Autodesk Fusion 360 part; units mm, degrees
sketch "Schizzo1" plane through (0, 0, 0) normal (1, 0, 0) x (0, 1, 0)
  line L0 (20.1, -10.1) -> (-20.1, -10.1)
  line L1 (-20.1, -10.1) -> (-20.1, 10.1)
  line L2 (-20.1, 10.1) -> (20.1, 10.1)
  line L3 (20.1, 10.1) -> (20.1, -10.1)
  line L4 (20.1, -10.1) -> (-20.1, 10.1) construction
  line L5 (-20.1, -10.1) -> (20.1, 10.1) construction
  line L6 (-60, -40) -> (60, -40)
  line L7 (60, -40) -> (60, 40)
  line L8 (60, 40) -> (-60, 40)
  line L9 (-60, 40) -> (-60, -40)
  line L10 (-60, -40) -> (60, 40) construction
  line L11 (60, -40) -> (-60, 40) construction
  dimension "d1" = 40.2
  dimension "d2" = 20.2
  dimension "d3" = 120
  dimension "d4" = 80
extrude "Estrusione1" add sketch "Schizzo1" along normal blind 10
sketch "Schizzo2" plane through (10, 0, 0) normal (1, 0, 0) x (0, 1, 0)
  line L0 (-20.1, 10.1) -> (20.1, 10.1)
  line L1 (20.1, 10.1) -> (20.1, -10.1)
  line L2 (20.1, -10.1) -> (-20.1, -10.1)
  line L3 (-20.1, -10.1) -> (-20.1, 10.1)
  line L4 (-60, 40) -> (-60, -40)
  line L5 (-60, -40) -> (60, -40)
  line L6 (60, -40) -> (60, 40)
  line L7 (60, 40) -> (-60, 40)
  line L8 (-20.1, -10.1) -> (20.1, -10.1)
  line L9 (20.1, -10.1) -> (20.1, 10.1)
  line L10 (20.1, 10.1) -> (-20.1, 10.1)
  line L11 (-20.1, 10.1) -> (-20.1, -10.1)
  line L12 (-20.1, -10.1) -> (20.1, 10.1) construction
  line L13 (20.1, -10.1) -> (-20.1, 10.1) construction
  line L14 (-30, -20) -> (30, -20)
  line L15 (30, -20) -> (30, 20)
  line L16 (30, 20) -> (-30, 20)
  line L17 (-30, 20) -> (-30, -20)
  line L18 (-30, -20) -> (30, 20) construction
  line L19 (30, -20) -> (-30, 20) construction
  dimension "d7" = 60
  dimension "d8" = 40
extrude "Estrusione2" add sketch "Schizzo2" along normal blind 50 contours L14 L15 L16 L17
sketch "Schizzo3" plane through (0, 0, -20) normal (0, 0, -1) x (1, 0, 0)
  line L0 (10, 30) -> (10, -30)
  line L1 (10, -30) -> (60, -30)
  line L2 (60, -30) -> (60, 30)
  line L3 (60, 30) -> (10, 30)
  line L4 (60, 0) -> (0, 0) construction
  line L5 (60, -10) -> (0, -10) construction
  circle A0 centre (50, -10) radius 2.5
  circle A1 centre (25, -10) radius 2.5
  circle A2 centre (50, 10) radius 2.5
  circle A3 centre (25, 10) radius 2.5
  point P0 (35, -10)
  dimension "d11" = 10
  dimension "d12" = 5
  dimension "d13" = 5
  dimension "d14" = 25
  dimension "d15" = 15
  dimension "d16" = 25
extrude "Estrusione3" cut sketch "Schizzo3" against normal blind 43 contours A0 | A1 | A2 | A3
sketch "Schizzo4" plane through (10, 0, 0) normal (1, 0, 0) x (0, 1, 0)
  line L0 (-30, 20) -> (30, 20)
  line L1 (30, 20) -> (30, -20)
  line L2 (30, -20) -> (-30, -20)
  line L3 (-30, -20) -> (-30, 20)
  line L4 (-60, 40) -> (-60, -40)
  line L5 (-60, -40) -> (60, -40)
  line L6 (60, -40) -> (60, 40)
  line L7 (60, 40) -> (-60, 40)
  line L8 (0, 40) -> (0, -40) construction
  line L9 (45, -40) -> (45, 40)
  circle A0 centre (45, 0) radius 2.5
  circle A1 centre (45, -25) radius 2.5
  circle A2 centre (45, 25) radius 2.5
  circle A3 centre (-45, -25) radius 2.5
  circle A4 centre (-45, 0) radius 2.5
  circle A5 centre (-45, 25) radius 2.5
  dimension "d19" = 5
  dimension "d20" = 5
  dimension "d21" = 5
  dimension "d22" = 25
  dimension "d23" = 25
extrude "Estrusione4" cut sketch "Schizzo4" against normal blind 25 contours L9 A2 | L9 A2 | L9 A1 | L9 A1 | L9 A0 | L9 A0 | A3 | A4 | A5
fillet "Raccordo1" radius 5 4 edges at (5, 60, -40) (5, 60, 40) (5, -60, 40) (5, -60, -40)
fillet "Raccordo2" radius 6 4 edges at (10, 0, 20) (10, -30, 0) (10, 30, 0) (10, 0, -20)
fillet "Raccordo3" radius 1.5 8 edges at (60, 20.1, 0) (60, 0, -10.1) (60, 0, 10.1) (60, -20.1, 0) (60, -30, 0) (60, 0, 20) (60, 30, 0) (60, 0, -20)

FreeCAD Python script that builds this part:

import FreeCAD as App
import Part
import Sketcher


def edges_at(feature, points):
    """Names of the edges that pass closest to the given points."""
    edges = feature.Shape.Edges
    near = lambda p: min(range(len(edges)), key=lambda i: edges[i].distToShape(Part.Vertex(*p))[0])
    return sorted({f"Edge{near(p) + 1}" for p in points})

doc = App.newDocument("Part")
params = doc.addObject("Spreadsheet::Sheet", "Params")
for row, (alias, value) in enumerate([
    ("sketch1_width", "120 mm"),
    ("sketch1_height", "80 mm"),
    ("sketch1_width2", "40.2 mm"),
    ("sketch1_height2", "20.2 mm"),
    ("pad1_length", "10 mm"),
    ("sketch2_width", "60 mm"),
    ("sketch2_height", "40 mm"),
    ("sketch2_width2", "40.2 mm"),
    ("sketch2_height2", "20.2 mm"),
    ("pad2_length", "50 mm"),
    ("sketch3_diameter", "5 mm"),
    ("pocket1_length", "43 mm"),
    ("sketch4_diameter", "5 mm"),
    ("pocket2_length", "25 mm"),
    ("fillet_radius", "5 mm"),
    ("fillet2_radius", "6 mm"),
    ("fillet3_radius", "1.5 mm"),
], start=1):
    params.set(f"A{row}", alias)
    params.set(f"B{row}", "=" + value)
    params.setAlias(f"B{row}", alias)

body = doc.addObject("PartDesign::Body", "Body")

# Sketch on YZ plane
sketch1 = body.newObject("Sketcher::SketchObject", "Sketch")
sketch1.AttachmentSupport = (doc.getObject("YZ_Plane"), [""])
sketch1.MapMode = "FlatFace"
sketch1.addGeometry(Part.LineSegment(App.Vector(-60, 40, 0), App.Vector(-60, -40, 0)), False)
sketch1.addGeometry(Part.LineSegment(App.Vector(-60, -40, 0), App.Vector(60, -40, 0)), False)
sketch1.addGeometry(Part.LineSegment(App.Vector(60, -40, 0), App.Vector(60, 40, 0)), False)
sketch1.addGeometry(Part.LineSegment(App.Vector(60, 40, 0), App.Vector(-60, 40, 0)), False)
sketch1.addGeometry(Part.LineSegment(App.Vector(20, 10, 0), App.Vector(20, -10, 0)), False)
sketch1.addGeometry(Part.LineSegment(App.Vector(20, -10, 0), App.Vector(-20, -10, 0)), False)
sketch1.addGeometry(Part.LineSegment(App.Vector(-20, -10, 0), App.Vector(-20, 10, 0)), False)
sketch1.addGeometry(Part.LineSegment(App.Vector(-20, 10, 0), App.Vector(20, 10, 0)), False)
sketch1.addConstraint(Sketcher.Constraint("Coincident", 0, 2, 1, 1))
sketch1.addConstraint(Sketcher.Constraint("Coincident", 1, 2, 2, 1))
sketch1.addConstraint(Sketcher.Constraint("Coincident", 2, 2, 3, 1))
sketch1.addConstraint(Sketcher.Constraint("Coincident", 3, 2, 0, 1))
sketch1.addConstraint(Sketcher.Constraint("Coincident", 4, 2, 5, 1))
sketch1.addConstraint(Sketcher.Constraint("Coincident", 5, 2, 6, 1))
sketch1.addConstraint(Sketcher.Constraint("Coincident", 6, 2, 7, 1))
sketch1.addConstraint(Sketcher.Constraint("Coincident", 7, 2, 4, 1))
sketch1.addConstraint(Sketcher.Constraint("Vertical", 0))
sketch1.addConstraint(Sketcher.Constraint("Horizontal", 1))
sketch1.addConstraint(Sketcher.Constraint("Vertical", 2))
sketch1.addConstraint(Sketcher.Constraint("Horizontal", 3))
sketch1.addConstraint(Sketcher.Constraint("Vertical", 4))
sketch1.addConstraint(Sketcher.Constraint("Horizontal", 5))
sketch1.addConstraint(Sketcher.Constraint("Vertical", 6))
sketch1.addConstraint(Sketcher.Constraint("Horizontal", 7))
sketch1.addConstraint(Sketcher.Constraint("Symmetric", 0, 2, 2, 2, -1, 1))
sketch1.addConstraint(Sketcher.Constraint("Symmetric", 4, 2, 6, 2, -1, 1))
sketch1.addConstraint(Sketcher.Constraint("DistanceX", 1, 1, 1, 2, 120.0))
sketch1.addConstraint(Sketcher.Constraint("DistanceY", 0, 2, 0, 1, 80.0))
sketch1.addConstraint(Sketcher.Constraint("DistanceX", 5, 2, 5, 1, 40.2))
sketch1.addConstraint(Sketcher.Constraint("DistanceY", 4, 2, 4, 1, 20.2))
sketch1.setExpression("Constraints[18]", "Params.sketch1_width")
sketch1.setExpression("Constraints[19]", "Params.sketch1_height")
sketch1.setExpression("Constraints[20]", "Params.sketch1_width2")
sketch1.setExpression("Constraints[21]", "Params.sketch1_height2")
pad1 = body.newObject("PartDesign::Pad", "Pad")
pad1.Profile = sketch1
pad1.setExpression("Length", "Params.pad1_length")

# Sketch on YZ plane
sketch2 = body.newObject("Sketcher::SketchObject", "Sketch001")
sketch2.AttachmentSupport = (doc.getObject("YZ_Plane"), [""])
sketch2.MapMode = "FlatFace"
sketch2.AttachmentOffset = App.Placement(App.Vector(0, 0, 10), App.Rotation())
sketch2.addGeometry(Part.LineSegment(App.Vector(-30, 20, 0), App.Vector(-30, -20, 0)), False)
sketch2.addGeometry(Part.LineSegment(App.Vector(-30, -20, 0), App.Vector(30, -20, 0)), False)
sketch2.addGeometry(Part.LineSegment(App.Vector(30, -20, 0), App.Vector(30, 20, 0)), False)
sketch2.addGeometry(Part.LineSegment(App.Vector(30, 20, 0), App.Vector(-30, 20, 0)), False)
sketch2.addGeometry(Part.LineSegment(App.Vector(-20, -10, 0), App.Vector(-20, 10, 0)), False)
sketch2.addGeometry(Part.LineSegment(App.Vector(-20, 10, 0), App.Vector(20, 10, 0)), False)
sketch2.addGeometry(Part.LineSegment(App.Vector(20, 10, 0), App.Vector(20, -10, 0)), False)
sketch2.addGeometry(Part.LineSegment(App.Vector(20, -10, 0), App.Vector(-20, -10, 0)), False)
sketch2.addConstraint(Sketcher.Constraint("Coincident", 0, 2, 1, 1))
sketch2.addConstraint(Sketcher.Constraint("Coincident", 1, 2, 2, 1))
sketch2.addConstraint(Sketcher.Constraint("Coincident", 2, 2, 3, 1))
sketch2.addConstraint(Sketcher.Constraint("Coincident", 3, 2, 0, 1))
sketch2.addConstraint(Sketcher.Constraint("Coincident", 4, 2, 5, 1))
sketch2.addConstraint(Sketcher.Constraint("Coincident", 5, 2, 6, 1))
sketch2.addConstraint(Sketcher.Constraint("Coincident", 6, 2, 7, 1))
sketch2.addConstraint(Sketcher.Constraint("Coincident", 7, 2, 4, 1))
sketch2.addConstraint(Sketcher.Constraint("Vertical", 0))
sketch2.addConstraint(Sketcher.Constraint("Horizontal", 1))
sketch2.addConstraint(Sketcher.Constraint("Vertical", 2))
sketch2.addConstraint(Sketcher.Constraint("Horizontal", 3))
sketch2.addConstraint(Sketcher.Constraint("Vertical", 4))
sketch2.addConstraint(Sketcher.Constraint("Horizontal", 5))
sketch2.addConstraint(Sketcher.Constraint("Vertical", 6))
sketch2.addConstraint(Sketcher.Constraint("Horizontal", 7))
sketch2.addConstraint(Sketcher.Constraint("Symmetric", 0, 2, 2, 2, -1, 1))
sketch2.addConstraint(Sketcher.Constraint("Symmetric", 4, 2, 6, 2, -1, 1))
sketch2.addConstraint(Sketcher.Constraint("DistanceX", 1, 1, 1, 2, 60.0))
sketch2.addConstraint(Sketcher.Constraint("DistanceY", 0, 2, 0, 1, 40.0))
sketch2.addConstraint(Sketcher.Constraint("DistanceX", 5, 1, 5, 2, 40.2))
sketch2.addConstraint(Sketcher.Constraint("DistanceY", 4, 1, 4, 2, 20.2))
sketch2.setExpression("Constraints[18]", "Params.sketch2_width")
sketch2.setExpression("Constraints[19]", "Params.sketch2_height")
sketch2.setExpression("Constraints[20]", "Params.sketch2_width2")
sketch2.setExpression("Constraints[21]", "Params.sketch2_height2")
pad2 = body.newObject("PartDesign::Pad", "Pad001")
pad2.Profile = sketch2
pad2.setExpression("Length", "Params.pad2_length")

# Sketch on XY plane
sketch3 = body.newObject("Sketcher::SketchObject", "Sketch002")
sketch3.AttachmentSupport = (doc.getObject("XY_Plane"), [""])
sketch3.MapMode = "FlatFace"
sketch3.AttachmentOffset = App.Placement(App.Vector(0, 0, -20), App.Rotation())
sketch3.addGeometry(Part.Circle(App.Vector(50, 10, 0), App.Vector(0, 0, 1), 2.5), False)
sketch3.addGeometry(Part.Circle(App.Vector(25, 10, 0), App.Vector(0, 0, 1), 2.5), False)
sketch3.addGeometry(Part.Circle(App.Vector(50, -10, 0), App.Vector(0, 0, 1), 2.5), False)
sketch3.addGeometry(Part.Circle(App.Vector(25, -10, 0), App.Vector(0, 0, 1), 2.5), False)
sketch3.addConstraint(Sketcher.Constraint("Equal", 0, 1))
sketch3.addConstraint(Sketcher.Constraint("Equal", 1, 2))
sketch3.addConstraint(Sketcher.Constraint("Equal", 2, 3))
sketch3.addConstraint(Sketcher.Constraint("Symmetric", 0, 3, 2, 3, -1))
sketch3.addConstraint(Sketcher.Constraint("Symmetric", 1, 3, 3, 3, -1))
sketch3.addConstraint(Sketcher.Constraint("Horizontal", 0, 3, 1, 3))
sketch3.addConstraint(Sketcher.Constraint("Diameter", 0, 5.0))
sketch3.addConstraint(Sketcher.Constraint("DistanceY", -1, 1, 0, 3, 10.0))
sketch3.addConstraint(Sketcher.Constraint("DistanceX", -1, 1, 1, 3, 25.0))
sketch3.addConstraint(Sketcher.Constraint("DistanceX", 1, 3, 0, 3, 25.0))
sketch3.setExpression("Constraints[6]", "Params.sketch3_diameter")
pocket1 = body.newObject("PartDesign::Pocket", "Pocket")
pocket1.Profile = sketch3
pocket1.setExpression("Length", "Params.pocket1_length")
pocket1.Reversed = True

# Sketch on YZ plane
sketch4 = body.newObject("Sketcher::SketchObject", "Sketch003")
sketch4.AttachmentSupport = (doc.getObject("YZ_Plane"), [""])
sketch4.MapMode = "FlatFace"
sketch4.AttachmentOffset = App.Placement(App.Vector(0, 0, 10), App.Rotation())
sketch4.addGeometry(Part.Circle(App.Vector(45, 25, 0), App.Vector(0, 0, 1), 2.5), False)
sketch4.addGeometry(Part.Circle(App.Vector(45, -25, 0), App.Vector(0, 0, 1), 2.5), False)
sketch4.addGeometry(Part.Circle(App.Vector(45, 0, 0), App.Vector(0, 0, 1), 2.5), False)
sketch4.addGeometry(Part.Circle(App.Vector(-45, -25, 0), App.Vector(0, 0, 1), 2.5), False)
sketch4.addGeometry(Part.Circle(App.Vector(-45, 0, 0), App.Vector(0, 0, 1), 2.5), False)
sketch4.addGeometry(Part.Circle(App.Vector(-45, 25, 0), App.Vector(0, 0, 1), 2.5), False)
sketch4.addConstraint(Sketcher.Constraint("Equal", 0, 1))
sketch4.addConstraint(Sketcher.Constraint("Equal", 1, 2))
sketch4.addConstraint(Sketcher.Constraint("Equal", 2, 3))
sketch4.addConstraint(Sketcher.Constraint("Equal", 3, 4))
sketch4.addConstraint(Sketcher.Constraint("Equal", 4, 5))
sketch4.addConstraint(Sketcher.Constraint("Symmetric", 0, 3, 3, 3, -1, 1))
sketch4.addConstraint(Sketcher.Constraint("Symmetric", 2, 3, 4, 3, -1, 1))
sketch4.addConstraint(Sketcher.Constraint("Symmetric", 1, 3, 5, 3, -1, 1))
sketch4.addConstraint(Sketcher.Constraint("Symmetric", 1, 3, 3, 3, -2))
sketch4.addConstraint(Sketcher.Constraint("PointOnObject", 2, 3, -1))
sketch4.addConstraint(Sketcher.Constraint("Vertical", 1, 3, 2, 3))
sketch4.addConstraint(Sketcher.Constraint("Diameter", 0, 5.0))
sketch4.addConstraint(Sketcher.Constraint("DistanceY", -1, 1, 0, 3, 25.0))
sketch4.addConstraint(Sketcher.Constraint("DistanceX", -1, 1, 0, 3, 45.0))
sketch4.setExpression("Constraints[11]", "Params.sketch4_diameter")
pocket2 = body.newObject("PartDesign::Pocket", "Pocket001")
pocket2.Profile = sketch4
pocket2.setExpression("Length", "Params.pocket2_length")
doc.recompute()

fillet = body.newObject("PartDesign::Fillet", "Fillet")
fillet.Base = (pocket2, edges_at(pocket2, [
    (5, 60, -40),
    (5, 60, 40),
    (5, -60, 40),
    (5, -60, -40),
]))
fillet.setExpression("Radius", "Params.fillet_radius")
doc.recompute()

fillet2 = body.newObject("PartDesign::Fillet", "Fillet001")
fillet2.Base = (fillet, edges_at(fillet, [
    (10, 0, 20),
    (10, -30, 0),
    (10, 30, 0),
    (10, 0, -20),
]))
fillet2.setExpression("Radius", "Params.fillet2_radius")
doc.recompute()

fillet3 = body.newObject("PartDesign::Fillet", "Fillet002")
fillet3.Base = (fillet2, edges_at(fillet2, [
    (60, 20.1, 0),
    (60, 0, -10.1),
    (60, 0, 10.1),
    (60, -20.1, 0),
    (60, -30, 0),
    (60, 0, 20),
    (60, 30, 0),
    (60, 0, -20),
]))
fillet3.setExpression("Radius", "Params.fillet3_radius")

doc.recompute()
